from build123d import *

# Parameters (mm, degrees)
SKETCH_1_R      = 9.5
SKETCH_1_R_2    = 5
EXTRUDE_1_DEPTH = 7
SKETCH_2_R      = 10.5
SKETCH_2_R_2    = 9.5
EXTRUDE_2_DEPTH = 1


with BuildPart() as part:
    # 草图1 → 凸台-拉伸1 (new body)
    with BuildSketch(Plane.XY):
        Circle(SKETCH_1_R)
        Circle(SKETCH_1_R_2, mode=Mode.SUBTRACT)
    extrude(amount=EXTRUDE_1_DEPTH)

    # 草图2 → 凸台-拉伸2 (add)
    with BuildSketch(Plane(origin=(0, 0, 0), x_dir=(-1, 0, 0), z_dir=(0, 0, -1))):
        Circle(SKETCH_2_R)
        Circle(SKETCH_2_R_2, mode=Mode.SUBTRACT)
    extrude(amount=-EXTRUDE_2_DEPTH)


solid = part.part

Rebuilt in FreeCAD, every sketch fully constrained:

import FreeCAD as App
import Part
import Sketcher

V = App.Vector

doc = App.newDocument("Part")
params = doc.addObject("Spreadsheet::Sheet", "Params")
for row, (alias, value) in enumerate([
    ("sketch1_diameter", "19 mm"),
    ("sketch1_diameter2", "10 mm"),
    ("pad1_length", "7 mm"),
    ("sketch2_diameter", "21 mm"),
    ("sketch2_diameter2", "19 mm"),
    ("pad2_length", "1 mm"),
], start=1):
    params.set(f"A{row}", alias)
    params.set(f"B{row}", "=" + value)
    params.setAlias(f"B{row}", alias)

body = doc.addObject("PartDesign::Body", "Body")

# Sketch on XY plane
sketch1 = doc.addObject("Sketcher::SketchObject", "Sketch")
body.addObject(sketch1)
sketch1.AttachmentSupport = (doc.XY_Plane, [""])
sketch1.MapMode = "FlatFace"
sketch1.addGeometry([
    Part.Circle(V(0, 0, 0), V(0, 0, 1), 10),
    Part.Circle(V(0, 0, 0), V(0, 0, 1), 5),
], False)
sketch1.addConstraint([
    Sketcher.Constraint("Coincident", 0, 3, -1, 1),
    Sketcher.Constraint("Coincident", 1, 3, -1, 1),
    Sketcher.Constraint("Diameter", 0, 19.0),
    Sketcher.Constraint("Diameter", 1, 10.0),
])
sketch1.setExpression("Constraints[2]", "Params.sketch1_diameter")
sketch1.setExpression("Constraints[3]", "Params.sketch1_diameter2")
pad1 = doc.addObject("PartDesign::Pad", "Pad")
body.addObject(pad1)
pad1.Profile = sketch1
pad1.setExpression("Length", "Params.pad1_length")

# Sketch on XY plane
sketch2 = doc.addObject("Sketcher::SketchObject", "Sketch001")
body.addObject(sketch2)
sketch2.AttachmentSupport = (doc.XY_Plane, [""])
sketch2.MapMode = "FlatFace"
sketch2.addGeometry([
    Part.Circle(V(0, 0, 0), V(0, 0, 1), 10),
    Part.Circle(V(0, 0, 0), V(0, 0, 1), 10),
], False)
sketch2.addConstraint([
    Sketcher.Constraint("Coincident", 0, 3, -1, 1),
    Sketcher.Constraint("Coincident", 1, 3, -1, 1),
    Sketcher.Constraint("Diameter", 0, 21.0),
    Sketcher.Constraint("Diameter", 1, 19.0),
])
sketch2.setExpression("Constraints[2]", "Params.sketch2_diameter")
sketch2.setExpression("Constraints[3]", "Params.sketch2_diameter2")
pad2 = doc.addObject("PartDesign::Pad", "Pad001")
body.addObject(pad2)
pad2.Profile = sketch2
pad2.setExpression("Length", "Params.pad2_length")

doc.recompute()
